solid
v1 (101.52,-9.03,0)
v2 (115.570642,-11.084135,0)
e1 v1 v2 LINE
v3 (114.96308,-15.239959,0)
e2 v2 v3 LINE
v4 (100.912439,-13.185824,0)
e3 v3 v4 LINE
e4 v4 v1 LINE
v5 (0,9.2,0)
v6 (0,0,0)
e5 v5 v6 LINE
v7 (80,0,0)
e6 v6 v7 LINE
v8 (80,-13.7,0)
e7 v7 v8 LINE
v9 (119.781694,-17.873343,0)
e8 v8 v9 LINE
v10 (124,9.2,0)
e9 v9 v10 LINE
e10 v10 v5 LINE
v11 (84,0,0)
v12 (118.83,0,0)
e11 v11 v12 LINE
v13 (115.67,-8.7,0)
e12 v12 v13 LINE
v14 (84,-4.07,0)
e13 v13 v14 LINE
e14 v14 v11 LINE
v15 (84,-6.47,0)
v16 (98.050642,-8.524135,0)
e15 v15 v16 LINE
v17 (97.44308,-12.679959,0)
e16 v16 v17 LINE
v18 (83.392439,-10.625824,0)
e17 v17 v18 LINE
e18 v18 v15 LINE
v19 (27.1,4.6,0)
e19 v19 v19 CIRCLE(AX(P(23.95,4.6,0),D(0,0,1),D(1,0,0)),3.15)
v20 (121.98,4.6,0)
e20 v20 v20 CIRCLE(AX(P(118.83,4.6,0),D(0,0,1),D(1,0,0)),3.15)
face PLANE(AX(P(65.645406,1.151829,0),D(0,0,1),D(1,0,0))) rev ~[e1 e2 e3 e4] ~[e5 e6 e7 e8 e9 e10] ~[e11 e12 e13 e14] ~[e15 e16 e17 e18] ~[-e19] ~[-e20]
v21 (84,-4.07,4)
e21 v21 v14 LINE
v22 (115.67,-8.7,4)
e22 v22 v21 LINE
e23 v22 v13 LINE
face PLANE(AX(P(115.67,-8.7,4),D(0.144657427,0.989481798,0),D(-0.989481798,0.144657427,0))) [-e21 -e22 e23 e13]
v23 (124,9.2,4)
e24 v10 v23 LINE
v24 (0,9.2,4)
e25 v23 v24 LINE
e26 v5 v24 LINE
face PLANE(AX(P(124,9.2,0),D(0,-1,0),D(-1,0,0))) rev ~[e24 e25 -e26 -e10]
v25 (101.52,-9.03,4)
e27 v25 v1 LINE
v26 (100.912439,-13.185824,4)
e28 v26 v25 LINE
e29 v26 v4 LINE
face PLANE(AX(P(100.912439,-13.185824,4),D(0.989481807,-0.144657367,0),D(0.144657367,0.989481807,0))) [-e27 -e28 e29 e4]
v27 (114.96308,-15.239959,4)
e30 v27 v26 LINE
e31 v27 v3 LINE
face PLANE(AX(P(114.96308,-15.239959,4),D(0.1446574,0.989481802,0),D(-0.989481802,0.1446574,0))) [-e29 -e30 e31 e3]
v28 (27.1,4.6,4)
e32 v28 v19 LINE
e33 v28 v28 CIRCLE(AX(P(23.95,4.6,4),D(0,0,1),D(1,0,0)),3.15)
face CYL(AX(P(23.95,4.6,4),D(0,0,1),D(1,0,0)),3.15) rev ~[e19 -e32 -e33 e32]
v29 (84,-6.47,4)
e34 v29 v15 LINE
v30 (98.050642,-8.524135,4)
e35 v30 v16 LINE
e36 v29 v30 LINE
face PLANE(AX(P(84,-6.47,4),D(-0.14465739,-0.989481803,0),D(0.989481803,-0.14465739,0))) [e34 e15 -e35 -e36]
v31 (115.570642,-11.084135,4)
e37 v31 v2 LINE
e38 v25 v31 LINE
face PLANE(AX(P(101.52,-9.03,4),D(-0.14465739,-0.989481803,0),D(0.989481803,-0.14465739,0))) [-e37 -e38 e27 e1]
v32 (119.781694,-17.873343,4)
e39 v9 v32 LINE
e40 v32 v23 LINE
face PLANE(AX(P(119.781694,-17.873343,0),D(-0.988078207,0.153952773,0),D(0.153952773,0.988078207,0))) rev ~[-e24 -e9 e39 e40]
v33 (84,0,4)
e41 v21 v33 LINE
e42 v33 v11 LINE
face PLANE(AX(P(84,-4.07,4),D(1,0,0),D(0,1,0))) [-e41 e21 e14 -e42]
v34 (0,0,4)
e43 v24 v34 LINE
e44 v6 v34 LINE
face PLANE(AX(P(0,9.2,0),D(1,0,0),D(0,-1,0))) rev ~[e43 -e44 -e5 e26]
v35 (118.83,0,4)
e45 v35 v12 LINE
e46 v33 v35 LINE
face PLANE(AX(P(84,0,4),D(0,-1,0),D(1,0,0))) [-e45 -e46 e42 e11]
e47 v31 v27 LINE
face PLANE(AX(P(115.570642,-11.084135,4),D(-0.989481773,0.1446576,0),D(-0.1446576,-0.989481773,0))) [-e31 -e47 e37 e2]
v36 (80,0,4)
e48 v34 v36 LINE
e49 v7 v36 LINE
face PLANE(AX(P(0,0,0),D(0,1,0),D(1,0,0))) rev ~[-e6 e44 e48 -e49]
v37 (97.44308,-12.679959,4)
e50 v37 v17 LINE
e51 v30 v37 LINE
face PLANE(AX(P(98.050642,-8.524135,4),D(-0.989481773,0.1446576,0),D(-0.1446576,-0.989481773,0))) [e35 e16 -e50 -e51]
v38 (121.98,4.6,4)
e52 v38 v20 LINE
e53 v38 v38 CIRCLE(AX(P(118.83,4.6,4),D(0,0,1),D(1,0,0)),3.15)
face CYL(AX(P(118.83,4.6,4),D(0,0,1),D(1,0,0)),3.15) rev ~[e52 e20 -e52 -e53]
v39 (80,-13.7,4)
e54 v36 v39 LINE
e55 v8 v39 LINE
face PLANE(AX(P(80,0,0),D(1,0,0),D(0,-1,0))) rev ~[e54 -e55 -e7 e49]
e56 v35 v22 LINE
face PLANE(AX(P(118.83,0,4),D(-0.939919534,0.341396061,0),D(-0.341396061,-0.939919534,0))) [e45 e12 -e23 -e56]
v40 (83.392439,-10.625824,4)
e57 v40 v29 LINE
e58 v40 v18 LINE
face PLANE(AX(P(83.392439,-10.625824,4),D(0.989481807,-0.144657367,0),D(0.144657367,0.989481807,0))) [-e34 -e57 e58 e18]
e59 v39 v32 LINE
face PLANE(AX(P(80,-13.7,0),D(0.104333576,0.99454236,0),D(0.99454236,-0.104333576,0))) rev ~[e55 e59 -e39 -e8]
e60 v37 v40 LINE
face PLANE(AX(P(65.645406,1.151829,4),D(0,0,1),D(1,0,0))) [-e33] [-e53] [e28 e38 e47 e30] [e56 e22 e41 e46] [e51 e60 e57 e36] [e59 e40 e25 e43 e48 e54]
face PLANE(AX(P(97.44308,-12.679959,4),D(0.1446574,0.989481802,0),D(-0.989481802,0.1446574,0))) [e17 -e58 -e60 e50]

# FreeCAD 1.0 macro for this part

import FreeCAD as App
import Part
import Sketcher
from FreeCAD import Vector
Q = App.Units.Quantity

doc = App.newDocument("Part")
body = doc.addObject("PartDesign::Body", "Body")

# Sketch on XY plane
sketch1 = body.newObject("Sketcher::SketchObject", "Sketch")
sketch1.AttachmentSupport = (doc.getObject("XY_Plane"), [""])
sketch1.MapMode = "FlatFace"
sketch1.addGeometry([
    Part.LineSegment(Vector(0, 9, 0), Vector(0, 0, 0)),  # 0
    Part.LineSegment(Vector(0, 0, 0), Vector(80, 0, 0)),  # 1
    Part.LineSegment(Vector(80, 0, 0), Vector(80, -14, 0)),  # 2
    Part.LineSegment(Vector(80, -14, 0), Vector(120, -18, 0)),  # 3
    Part.LineSegment(Vector(120, -18, 0), Vector(124, 9, 0)),  # 4
    Part.LineSegment(Vector(124, 9, 0), Vector(0, 9, 0)),  # 5
], False)
sketch1.addConstraint([
    Sketcher.Constraint("Coincident", 0, 2, 1, 1),
    Sketcher.Constraint("Coincident", 1, 2, 2, 1),
    Sketcher.Constraint("Coincident", 2, 2, 3, 1),
    Sketcher.Constraint("Coincident", 3, 2, 4, 1),
    Sketcher.Constraint("Coincident", 4, 2, 5, 1),
    Sketcher.Constraint("Coincident", 5, 2, 0, 1),
    Sketcher.Constraint("Vertical", 0),
    Sketcher.Constraint("Horizontal", 1),
    Sketcher.Constraint("Vertical", 2),
    Sketcher.Constraint("Horizontal", 5),
    Sketcher.Constraint("Coincident", 0, 2, -1, 1),
    Sketcher.Constraint("DistanceX", 1, 1, 1, 2, Q("80 mm")),
    Sketcher.Constraint("DistanceX", 5, 2, 5, 1, Q("124 mm")),
    Sketcher.Constraint("Distance", 3, Q("40 mm")),
    Sketcher.Constraint("DistanceY", 0, 2, 0, 1, Q("9.2 mm")),
    Sketcher.Constraint("DistanceY", 2, 2, 2, 1, Q("13.7 mm")),
    Sketcher.Constraint("Distance", 4, Q("27.4 mm")),
])
pad1 = body.newObject("PartDesign::Pad", "Pad")
pad1.Profile = sketch1
pad1.Length = 4

# Sketch on XY plane
sketch2 = body.newObject("Sketcher::SketchObject", "Sketch001")
sketch2.AttachmentSupport = (doc.getObject("XY_Plane"), [""])
sketch2.MapMode = "FlatFace"
sketch2.AttachmentOffset = App.Placement(Vector(0, 0, 4), App.Rotation())
sketch2.addGeometry([
    Part.Circle(Vector(23.9, 4.6, 0), Vector(0, 0, 1), 3.1),  # 0
    Part.Circle(Vector(118.8, 4.6, 0), Vector(0, 0, 1), 3.1),  # 1
    Part.LineSegment(Vector(118.8, 0, 0), Vector(84, 0, 0)),  # 2
    Part.LineSegment(Vector(84, 0, 0), Vector(84, -4.1, 0)),  # 3
    Part.LineSegment(Vector(84, -4.1, 0), Vector(115.7, -8.7, 0)),  # 4
    Part.LineSegment(Vector(115.7, -8.7, 0), Vector(118.8, 0, 0)),  # 5
    Part.LineSegment(Vector(98.1, -8.5, 0), Vector(84, -6.5, 0)),  # 6
    Part.LineSegment(Vector(84, -6.5, 0), Vector(83.4, -10.6, 0)),  # 7
    Part.LineSegment(Vector(83.4, -10.6, 0), Vector(97.4, -12.7, 0)),  # 8
    Part.LineSegment(Vector(97.4, -12.7, 0), Vector(98.1, -8.5, 0)),  # 9
    Part.LineSegment(Vector(115.6, -11.1, 0), Vector(101.5, -9, 0)),  # 10
    Part.LineSegment(Vector(101.5, -9, 0), Vector(100.9, -13.2, 0)),  # 11
    Part.LineSegment(Vector(100.9, -13.2, 0), Vector(115, -15.2, 0)),  # 12
    Part.LineSegment(Vector(115, -15.2, 0), Vector(115.6, -11.1, 0)),  # 13
], False)
sketch2.addConstraint([
    Sketcher.Constraint("Coincident", 2, 2, 3, 1),
    Sketcher.Constraint("Coincident", 3, 2, 4, 1),
    Sketcher.Constraint("Coincident", 4, 2, 5, 1),
    Sketcher.Constraint("Coincident", 5, 2, 2, 1),
    Sketcher.Constraint("Coincident", 6, 2, 7, 1),
    Sketcher.Constraint("Coincident", 7, 2, 8, 1),
    Sketcher.Constraint("Coincident", 8, 2, 9, 1),
    Sketcher.Constraint("Coincident", 9, 2, 6, 1),
    Sketcher.Constraint("Coincident", 10, 2, 11, 1),
    Sketcher.Constraint("Coincident", 11, 2, 12, 1),
    Sketcher.Constraint("Coincident", 12, 2, 13, 1),
    Sketcher.Constraint("Coincident", 13, 2, 10, 1),
    Sketcher.Constraint("Horizontal", 2),
    Sketcher.Constraint("Vertical", 3),
    Sketcher.Constraint("Equal", 0, 1),
    Sketcher.Constraint("PointOnObject", 2, 2, -1),
    Sketcher.Constraint("Parallel", 4, 6),
    Sketcher.Constraint("Perpendicular", 6, 7),
    Sketcher.Constraint("Perpendicular", 7, 8),
    Sketcher.Constraint("Perpendicular", 8, 9),
    Sketcher.Constraint("Perpendicular", 9, 10),
    Sketcher.Constraint("Perpendicular", 10, 11),
    Sketcher.Constraint("Perpendicular", 11, 12),
    Sketcher.Constraint("Perpendicular", 12, 13),
    Sketcher.Constraint("Horizontal", 0, 3, 1, 3),
    Sketcher.Constraint("Vertical", 1, 3, 5, 2),
    Sketcher.Constraint("Vertical", 3, 2, 6, 2),
    Sketcher.Constraint("Equal", 8, 10),
    Sketcher.Constraint("Equal", 9, 11),
    Sketcher.Constraint("Diameter", 0, Q("6.3 mm")),
    Sketcher.Constraint("DistanceX", -1, 1, 2, 2, Q("84 mm")),
    Sketcher.Constraint("Distance", 6, Q("14.2 mm")),
    Sketcher.Constraint("Distance", 7, Q("4.2 mm")),
    Sketcher.Constraint("DistanceX", 2, 2, 2, 1, Q("34.83 mm")),
    Sketcher.Constraint("DistanceY", 3, 2, 3, 1, Q("4.07 mm")),
    Sketcher.Constraint("DistanceY", -1, 1, 0, 3, Q("4.6 mm")),
    Sketcher.Constraint("DistanceY", 4, 2, -1, 1, Q("8.7 mm")),
    Sketcher.Constraint("DistanceY", 6, 2, 3, 2, Q("2.4 mm")),
    Sketcher.Constraint("DistanceX", -1, 1, 0, 3, Q("23.95 mm")),
    Sketcher.Constraint("DistanceX", -1, 1, 4, 2, Q("115.67 mm")),
    Sketcher.Constraint("DistanceX", -1, 1, 10, 2, Q("101.52 mm")),
    Sketcher.Constraint("DistanceY", 10, 2, -1, 1, Q("9.03 mm")),
])
pocket1 = body.newObject("PartDesign::Pocket", "Pocket")
pocket1.Profile = sketch2
pocket1.Length = 5

doc.recompute()
